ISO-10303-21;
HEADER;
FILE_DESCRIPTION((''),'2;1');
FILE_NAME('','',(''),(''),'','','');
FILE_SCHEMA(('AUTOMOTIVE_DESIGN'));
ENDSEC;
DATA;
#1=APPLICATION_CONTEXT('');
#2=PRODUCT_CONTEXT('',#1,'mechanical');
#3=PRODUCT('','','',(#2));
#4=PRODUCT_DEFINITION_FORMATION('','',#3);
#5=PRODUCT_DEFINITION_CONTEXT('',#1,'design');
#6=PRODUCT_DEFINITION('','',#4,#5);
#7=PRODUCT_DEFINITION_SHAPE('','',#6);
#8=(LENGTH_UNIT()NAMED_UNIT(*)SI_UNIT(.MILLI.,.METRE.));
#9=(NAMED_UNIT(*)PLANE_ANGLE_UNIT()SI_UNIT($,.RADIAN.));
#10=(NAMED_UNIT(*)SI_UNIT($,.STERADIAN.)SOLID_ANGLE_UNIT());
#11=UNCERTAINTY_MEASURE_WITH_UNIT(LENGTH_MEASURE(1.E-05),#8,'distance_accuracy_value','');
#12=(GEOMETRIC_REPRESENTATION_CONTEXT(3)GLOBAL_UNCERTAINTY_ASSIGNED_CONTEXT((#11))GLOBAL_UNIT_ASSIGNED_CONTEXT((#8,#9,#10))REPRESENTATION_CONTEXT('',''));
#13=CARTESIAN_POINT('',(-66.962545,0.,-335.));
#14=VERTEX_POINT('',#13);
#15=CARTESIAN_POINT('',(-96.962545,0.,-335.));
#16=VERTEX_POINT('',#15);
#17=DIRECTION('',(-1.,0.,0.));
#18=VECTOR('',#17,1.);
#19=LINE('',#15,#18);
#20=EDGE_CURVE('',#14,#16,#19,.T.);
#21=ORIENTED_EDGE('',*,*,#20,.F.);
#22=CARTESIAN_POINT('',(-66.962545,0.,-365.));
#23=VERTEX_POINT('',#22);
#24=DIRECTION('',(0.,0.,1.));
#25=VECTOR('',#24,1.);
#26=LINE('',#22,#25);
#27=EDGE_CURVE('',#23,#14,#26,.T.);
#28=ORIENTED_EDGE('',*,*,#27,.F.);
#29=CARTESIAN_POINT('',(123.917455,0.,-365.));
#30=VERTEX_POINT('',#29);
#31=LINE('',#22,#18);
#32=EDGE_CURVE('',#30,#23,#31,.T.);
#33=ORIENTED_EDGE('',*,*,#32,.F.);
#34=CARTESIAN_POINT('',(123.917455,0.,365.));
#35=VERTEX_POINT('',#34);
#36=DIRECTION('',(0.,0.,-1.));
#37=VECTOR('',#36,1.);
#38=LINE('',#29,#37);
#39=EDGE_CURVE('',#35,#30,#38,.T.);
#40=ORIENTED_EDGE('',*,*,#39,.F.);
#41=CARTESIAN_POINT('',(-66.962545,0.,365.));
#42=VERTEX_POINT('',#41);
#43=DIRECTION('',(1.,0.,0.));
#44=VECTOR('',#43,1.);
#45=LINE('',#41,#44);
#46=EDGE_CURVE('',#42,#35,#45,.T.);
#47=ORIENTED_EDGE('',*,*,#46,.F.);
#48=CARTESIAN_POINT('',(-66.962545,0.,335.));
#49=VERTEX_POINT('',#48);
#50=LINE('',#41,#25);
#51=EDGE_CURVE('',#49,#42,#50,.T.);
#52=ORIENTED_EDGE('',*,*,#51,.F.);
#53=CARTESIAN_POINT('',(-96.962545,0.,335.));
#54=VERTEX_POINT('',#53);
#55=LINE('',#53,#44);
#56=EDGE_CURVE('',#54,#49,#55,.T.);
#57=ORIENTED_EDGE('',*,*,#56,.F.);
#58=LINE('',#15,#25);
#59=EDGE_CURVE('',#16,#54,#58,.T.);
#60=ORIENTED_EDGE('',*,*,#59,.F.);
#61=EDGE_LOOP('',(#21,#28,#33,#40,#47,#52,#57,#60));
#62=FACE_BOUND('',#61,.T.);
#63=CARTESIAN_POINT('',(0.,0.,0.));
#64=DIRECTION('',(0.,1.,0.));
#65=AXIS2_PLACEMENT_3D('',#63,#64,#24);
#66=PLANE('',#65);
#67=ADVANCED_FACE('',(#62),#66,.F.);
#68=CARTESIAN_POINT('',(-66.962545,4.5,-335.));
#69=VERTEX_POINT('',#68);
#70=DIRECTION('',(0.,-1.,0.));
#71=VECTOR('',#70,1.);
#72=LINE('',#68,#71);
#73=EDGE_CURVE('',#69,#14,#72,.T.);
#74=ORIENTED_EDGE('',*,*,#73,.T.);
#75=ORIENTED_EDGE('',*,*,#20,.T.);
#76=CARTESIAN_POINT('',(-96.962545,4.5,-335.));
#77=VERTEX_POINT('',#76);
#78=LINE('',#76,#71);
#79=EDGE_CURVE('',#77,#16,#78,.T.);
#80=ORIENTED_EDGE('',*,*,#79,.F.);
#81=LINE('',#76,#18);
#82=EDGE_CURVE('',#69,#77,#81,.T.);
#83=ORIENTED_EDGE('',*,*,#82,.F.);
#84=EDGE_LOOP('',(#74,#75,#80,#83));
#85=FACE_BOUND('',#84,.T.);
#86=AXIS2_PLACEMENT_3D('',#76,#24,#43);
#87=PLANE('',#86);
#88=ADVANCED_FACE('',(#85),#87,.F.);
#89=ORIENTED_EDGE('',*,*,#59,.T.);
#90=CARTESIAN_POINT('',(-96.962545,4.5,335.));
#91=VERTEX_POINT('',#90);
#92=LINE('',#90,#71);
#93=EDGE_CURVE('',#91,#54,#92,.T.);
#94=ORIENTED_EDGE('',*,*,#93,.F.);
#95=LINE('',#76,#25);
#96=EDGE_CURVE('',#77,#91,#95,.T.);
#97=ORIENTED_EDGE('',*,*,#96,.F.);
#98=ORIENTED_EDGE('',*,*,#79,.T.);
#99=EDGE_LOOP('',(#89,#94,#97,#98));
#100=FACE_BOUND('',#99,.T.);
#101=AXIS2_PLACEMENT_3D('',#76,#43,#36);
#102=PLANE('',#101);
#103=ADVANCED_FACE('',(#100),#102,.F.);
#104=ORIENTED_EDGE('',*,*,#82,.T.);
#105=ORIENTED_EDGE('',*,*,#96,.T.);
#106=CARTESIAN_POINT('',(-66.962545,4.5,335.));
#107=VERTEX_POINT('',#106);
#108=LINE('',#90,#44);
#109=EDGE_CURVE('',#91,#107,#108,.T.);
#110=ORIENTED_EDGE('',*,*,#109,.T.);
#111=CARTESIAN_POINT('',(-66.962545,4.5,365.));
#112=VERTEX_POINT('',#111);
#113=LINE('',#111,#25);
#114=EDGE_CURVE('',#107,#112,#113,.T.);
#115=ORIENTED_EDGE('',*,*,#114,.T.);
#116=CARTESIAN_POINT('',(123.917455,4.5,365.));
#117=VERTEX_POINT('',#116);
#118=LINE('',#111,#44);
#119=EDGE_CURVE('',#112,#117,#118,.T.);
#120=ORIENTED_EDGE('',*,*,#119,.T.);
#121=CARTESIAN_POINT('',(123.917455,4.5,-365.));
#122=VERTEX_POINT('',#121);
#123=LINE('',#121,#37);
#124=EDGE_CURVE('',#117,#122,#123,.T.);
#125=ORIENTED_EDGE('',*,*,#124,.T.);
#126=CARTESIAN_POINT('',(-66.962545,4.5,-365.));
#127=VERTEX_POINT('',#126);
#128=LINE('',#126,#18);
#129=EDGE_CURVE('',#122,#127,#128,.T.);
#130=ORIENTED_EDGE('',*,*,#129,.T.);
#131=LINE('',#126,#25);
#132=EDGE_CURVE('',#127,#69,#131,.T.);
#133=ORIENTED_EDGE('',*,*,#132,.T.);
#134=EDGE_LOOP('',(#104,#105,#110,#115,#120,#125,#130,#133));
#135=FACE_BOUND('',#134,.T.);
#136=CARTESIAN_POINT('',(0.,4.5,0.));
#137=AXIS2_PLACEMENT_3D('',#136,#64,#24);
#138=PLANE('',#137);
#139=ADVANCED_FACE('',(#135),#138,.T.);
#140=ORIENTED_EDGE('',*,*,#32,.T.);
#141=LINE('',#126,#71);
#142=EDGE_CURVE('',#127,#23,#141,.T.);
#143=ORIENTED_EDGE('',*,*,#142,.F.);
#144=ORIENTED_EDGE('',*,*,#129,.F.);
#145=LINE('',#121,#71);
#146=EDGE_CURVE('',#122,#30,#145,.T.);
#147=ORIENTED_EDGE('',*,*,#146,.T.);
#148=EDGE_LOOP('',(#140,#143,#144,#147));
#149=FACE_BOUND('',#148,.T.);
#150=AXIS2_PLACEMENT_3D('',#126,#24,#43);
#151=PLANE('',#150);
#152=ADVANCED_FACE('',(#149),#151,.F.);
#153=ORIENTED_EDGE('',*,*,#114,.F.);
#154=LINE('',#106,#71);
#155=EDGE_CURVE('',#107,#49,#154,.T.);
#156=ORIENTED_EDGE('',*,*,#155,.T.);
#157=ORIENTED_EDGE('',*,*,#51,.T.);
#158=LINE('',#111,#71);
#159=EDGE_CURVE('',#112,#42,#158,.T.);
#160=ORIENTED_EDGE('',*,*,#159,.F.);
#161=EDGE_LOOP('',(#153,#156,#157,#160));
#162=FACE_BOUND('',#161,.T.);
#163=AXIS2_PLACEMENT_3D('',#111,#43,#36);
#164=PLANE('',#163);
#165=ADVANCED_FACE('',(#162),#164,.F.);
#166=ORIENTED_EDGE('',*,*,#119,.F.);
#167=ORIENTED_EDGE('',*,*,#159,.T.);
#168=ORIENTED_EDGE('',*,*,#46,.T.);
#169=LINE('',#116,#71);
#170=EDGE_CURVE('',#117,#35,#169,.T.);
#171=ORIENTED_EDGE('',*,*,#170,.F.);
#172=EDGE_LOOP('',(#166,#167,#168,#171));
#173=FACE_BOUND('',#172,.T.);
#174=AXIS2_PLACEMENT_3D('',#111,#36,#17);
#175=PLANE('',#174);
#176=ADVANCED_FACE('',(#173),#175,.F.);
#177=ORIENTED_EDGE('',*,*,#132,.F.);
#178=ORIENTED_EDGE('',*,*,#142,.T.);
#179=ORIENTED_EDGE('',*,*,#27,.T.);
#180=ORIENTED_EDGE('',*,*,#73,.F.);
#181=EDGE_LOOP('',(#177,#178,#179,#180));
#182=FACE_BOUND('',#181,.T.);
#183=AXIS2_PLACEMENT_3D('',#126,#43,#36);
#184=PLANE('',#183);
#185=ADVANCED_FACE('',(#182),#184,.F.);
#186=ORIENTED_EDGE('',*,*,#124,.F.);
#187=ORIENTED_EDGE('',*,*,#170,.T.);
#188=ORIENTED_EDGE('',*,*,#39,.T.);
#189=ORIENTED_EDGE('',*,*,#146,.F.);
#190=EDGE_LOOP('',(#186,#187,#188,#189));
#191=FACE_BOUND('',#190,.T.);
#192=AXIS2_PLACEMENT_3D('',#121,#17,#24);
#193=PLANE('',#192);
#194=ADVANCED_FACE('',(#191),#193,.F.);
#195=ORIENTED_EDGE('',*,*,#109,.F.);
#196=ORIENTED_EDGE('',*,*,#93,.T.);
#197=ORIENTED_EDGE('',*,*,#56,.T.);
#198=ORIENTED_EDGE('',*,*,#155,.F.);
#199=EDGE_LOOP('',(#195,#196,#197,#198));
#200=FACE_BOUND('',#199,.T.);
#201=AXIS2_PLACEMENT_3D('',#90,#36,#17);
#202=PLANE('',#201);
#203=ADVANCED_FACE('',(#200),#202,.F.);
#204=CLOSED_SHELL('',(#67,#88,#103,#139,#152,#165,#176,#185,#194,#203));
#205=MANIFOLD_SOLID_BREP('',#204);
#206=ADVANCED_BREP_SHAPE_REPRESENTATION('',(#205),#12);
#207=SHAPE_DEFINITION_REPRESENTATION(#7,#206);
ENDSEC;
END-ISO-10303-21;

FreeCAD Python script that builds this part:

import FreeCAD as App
import Part
import Sketcher
from FreeCAD import Vector
Q = App.Units.Quantity

doc = App.newDocument("Part")
body = doc.addObject("PartDesign::Body", "Body")

# Sketch on XZ plane
sketch1 = body.newObject("Sketcher::SketchObject", "Sketch")
sketch1.AttachmentSupport = (doc.getObject("XZ_Plane"), [""])
sketch1.MapMode = "FlatFace"
sketch1.addGeometry([
    Part.LineSegment(Vector(123.917455, -365, 0), Vector(-66.962545, -365, 0)),  # 0
    Part.LineSegment(Vector(-66.962545, -365, 0), Vector(-66.962545, -335, 0)),  # 1
    Part.LineSegment(Vector(-66.962545, -335, 0), Vector(-96.962545, -335, 0)),  # 2
    Part.LineSegment(Vector(-96.962545, -335, 0), Vector(-96.962545, 335, 0)),  # 3
    Part.LineSegment(Vector(-96.962545, 335, 0), Vector(-66.962545, 335, 0)),  # 4
    Part.LineSegment(Vector(-66.962545, 335, 0), Vector(-66.962545, 365, 0)),  # 5
    Part.LineSegment(Vector(-66.962545, 365, 0), Vector(123.917455, 365, 0)),  # 6
    Part.LineSegment(Vector(123.917455, 365, 0), Vector(123.917455, -365, 0)),  # 7
], False)
sketch1.addConstraint([
    Sketcher.Constraint("Coincident", 0, 2, 1, 1),
    Sketcher.Constraint("Coincident", 1, 2, 2, 1),
    Sketcher.Constraint("Coincident", 2, 2, 3, 1),
    Sketcher.Constraint("Coincident", 3, 2, 4, 1),
    Sketcher.Constraint("Coincident", 4, 2, 5, 1),
    Sketcher.Constraint("Coincident", 5, 2, 6, 1),
    Sketcher.Constraint("Coincident", 6, 2, 7, 1),
    Sketcher.Constraint("Coincident", 7, 2, 0, 1),
    Sketcher.Constraint("Horizontal", 0),
    Sketcher.Constraint("Vertical", 1),
    Sketcher.Constraint("Horizontal", 2),
    Sketcher.Constraint("Vertical", 3),
    Sketcher.Constraint("Horizontal", 4),
    Sketcher.Constraint("Vertical", 5),
    Sketcher.Constraint("Horizontal", 6),
    Sketcher.Constraint("Vertical", 7),
    Sketcher.Constraint("Symmetric", 1, 2, 4, 2, -1),
    Sketcher.Constraint("Equal", 4, 1),
    Sketcher.Constraint("Equal", 1, 5),
    Sketcher.Constraint("DistanceX", 2, 2, 2, 1, Q("30 mm")),
    Sketcher.Constraint("DistanceY", 3, 1, 3, 2, Q("670 mm")),
    Sketcher.Constraint("DistanceX", 0, 2, 0, 1, Q("190.88 mm")),
    Sketcher.Constraint("DistanceX", 0, 2, -1, 1, Q("66.962545 mm")),
])
pad1 = body.newObject("PartDesign::Pad", "Pad")
pad1.Profile = sketch1
pad1.Length = 4.5
pad1.Reversed = True

doc.recompute()
